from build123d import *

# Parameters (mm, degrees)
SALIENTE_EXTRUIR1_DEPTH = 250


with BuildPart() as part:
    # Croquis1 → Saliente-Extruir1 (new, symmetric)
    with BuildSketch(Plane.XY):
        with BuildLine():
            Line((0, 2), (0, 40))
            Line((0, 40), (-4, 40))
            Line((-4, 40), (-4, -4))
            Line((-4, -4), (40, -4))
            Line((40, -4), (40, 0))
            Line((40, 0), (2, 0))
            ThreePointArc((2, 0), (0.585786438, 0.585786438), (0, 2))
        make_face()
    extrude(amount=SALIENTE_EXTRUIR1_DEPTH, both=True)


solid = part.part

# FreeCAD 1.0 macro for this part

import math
import FreeCAD as App
import Part
import Sketcher
from FreeCAD import Vector
Q = App.Units.Quantity

doc = App.newDocument("Part")
params = doc.addObject("Spreadsheet::Sheet", "Params")
for row, (alias, value) in enumerate([
    ("sketch1_radius", "2 mm"),
    ("sketch1_width", "4 mm"),
    ("sketch1_width2", "44 mm"),
    ("pad1_length", "500 mm"),
], start=1):
    params.set(f"A{row}", alias)
    params.set(f"B{row}", "=" + value)
    params.setAlias(f"B{row}", alias)

body = doc.addObject("PartDesign::Body", "Body")

sketch1 = body.newObject("Sketcher::SketchObject", "Sketch")
sketch1.AttachmentSupport = (doc.getObject("XY_Plane"), [""])
sketch1.MapMode = "FlatFace"
sketch1.addGeometry(Part.LineSegment(Vector(0, 2, 0), Vector(0, 40, 0)), False)
sketch1.addGeometry(Part.LineSegment(Vector(0, 40, 0), Vector(-4, 40, 0)), False)
sketch1.addGeometry(Part.LineSegment(Vector(-4, 40, 0), Vector(-4, -4, 0)), False)
sketch1.addGeometry(Part.LineSegment(Vector(-4, -4, 0), Vector(40, -4, 0)), False)
sketch1.addGeometry(Part.LineSegment(Vector(40, -4, 0), Vector(40, 0, 0)), False)
sketch1.addGeometry(Part.LineSegment(Vector(40, 0, 0), Vector(2, 0, 0)), False)
sketch1.addGeometry(Part.ArcOfCircle(Part.Circle(Vector(2, 2, 0), Vector(0, 0, 1), 2), math.radians(-180), math.radians(-90)), False)
sketch1.addConstraint(Sketcher.Constraint("Coincident", 0, 2, 1, 1))
sketch1.addConstraint(Sketcher.Constraint("Coincident", 1, 2, 2, 1))
sketch1.addConstraint(Sketcher.Constraint("Coincident", 2, 2, 3, 1))
sketch1.addConstraint(Sketcher.Constraint("Coincident", 3, 2, 4, 1))
sketch1.addConstraint(Sketcher.Constraint("Coincident", 4, 2, 5, 1))
sketch1.addConstraint(Sketcher.Constraint("Tangent", 5, 2, 6, 2))
sketch1.addConstraint(Sketcher.Constraint("Tangent", 6, 1, 0, 1))
sketch1.addConstraint(Sketcher.Constraint("Vertical", 0))
sketch1.addConstraint(Sketcher.Constraint("Horizontal", 1))
sketch1.addConstraint(Sketcher.Constraint("Vertical", 2))
sketch1.addConstraint(Sketcher.Constraint("Horizontal", 3))
sketch1.addConstraint(Sketcher.Constraint("Vertical", 4))
sketch1.addConstraint(Sketcher.Constraint("Horizontal", 5))
sketch1.addConstraint(Sketcher.Constraint("PointOnObject", 0, 2, -2))
sketch1.addConstraint(Sketcher.Constraint("PointOnObject", 4, 2, -1))
sketch1.addConstraint(Sketcher.Constraint("Equal", 5, 0))
sketch1.addConstraint(Sketcher.Constraint("Equal", 3, 2))
sketch1.addConstraint(Sketcher.Constraint("Radius", 6, Q("2 mm")))
sketch1.addConstraint(Sketcher.Constraint("DistanceX", 1, 2, 1, 1, Q("4 mm")))
sketch1.addConstraint(Sketcher.Constraint("DistanceX", 3, 1, 3, 2, Q("44 mm")))
sketch1.setExpression("Constraints[17]", "Params.sketch1_radius")
sketch1.setExpression("Constraints[18]", "Params.sketch1_width")
sketch1.setExpression("Constraints[19]", "Params.sketch1_width2")
pad1 = body.newObject("PartDesign::Pad", "Pad")
pad1.Profile = sketch1
pad1.setExpression("Length", "Params.pad1_length")
pad1.Midplane = True

doc.recompute()
